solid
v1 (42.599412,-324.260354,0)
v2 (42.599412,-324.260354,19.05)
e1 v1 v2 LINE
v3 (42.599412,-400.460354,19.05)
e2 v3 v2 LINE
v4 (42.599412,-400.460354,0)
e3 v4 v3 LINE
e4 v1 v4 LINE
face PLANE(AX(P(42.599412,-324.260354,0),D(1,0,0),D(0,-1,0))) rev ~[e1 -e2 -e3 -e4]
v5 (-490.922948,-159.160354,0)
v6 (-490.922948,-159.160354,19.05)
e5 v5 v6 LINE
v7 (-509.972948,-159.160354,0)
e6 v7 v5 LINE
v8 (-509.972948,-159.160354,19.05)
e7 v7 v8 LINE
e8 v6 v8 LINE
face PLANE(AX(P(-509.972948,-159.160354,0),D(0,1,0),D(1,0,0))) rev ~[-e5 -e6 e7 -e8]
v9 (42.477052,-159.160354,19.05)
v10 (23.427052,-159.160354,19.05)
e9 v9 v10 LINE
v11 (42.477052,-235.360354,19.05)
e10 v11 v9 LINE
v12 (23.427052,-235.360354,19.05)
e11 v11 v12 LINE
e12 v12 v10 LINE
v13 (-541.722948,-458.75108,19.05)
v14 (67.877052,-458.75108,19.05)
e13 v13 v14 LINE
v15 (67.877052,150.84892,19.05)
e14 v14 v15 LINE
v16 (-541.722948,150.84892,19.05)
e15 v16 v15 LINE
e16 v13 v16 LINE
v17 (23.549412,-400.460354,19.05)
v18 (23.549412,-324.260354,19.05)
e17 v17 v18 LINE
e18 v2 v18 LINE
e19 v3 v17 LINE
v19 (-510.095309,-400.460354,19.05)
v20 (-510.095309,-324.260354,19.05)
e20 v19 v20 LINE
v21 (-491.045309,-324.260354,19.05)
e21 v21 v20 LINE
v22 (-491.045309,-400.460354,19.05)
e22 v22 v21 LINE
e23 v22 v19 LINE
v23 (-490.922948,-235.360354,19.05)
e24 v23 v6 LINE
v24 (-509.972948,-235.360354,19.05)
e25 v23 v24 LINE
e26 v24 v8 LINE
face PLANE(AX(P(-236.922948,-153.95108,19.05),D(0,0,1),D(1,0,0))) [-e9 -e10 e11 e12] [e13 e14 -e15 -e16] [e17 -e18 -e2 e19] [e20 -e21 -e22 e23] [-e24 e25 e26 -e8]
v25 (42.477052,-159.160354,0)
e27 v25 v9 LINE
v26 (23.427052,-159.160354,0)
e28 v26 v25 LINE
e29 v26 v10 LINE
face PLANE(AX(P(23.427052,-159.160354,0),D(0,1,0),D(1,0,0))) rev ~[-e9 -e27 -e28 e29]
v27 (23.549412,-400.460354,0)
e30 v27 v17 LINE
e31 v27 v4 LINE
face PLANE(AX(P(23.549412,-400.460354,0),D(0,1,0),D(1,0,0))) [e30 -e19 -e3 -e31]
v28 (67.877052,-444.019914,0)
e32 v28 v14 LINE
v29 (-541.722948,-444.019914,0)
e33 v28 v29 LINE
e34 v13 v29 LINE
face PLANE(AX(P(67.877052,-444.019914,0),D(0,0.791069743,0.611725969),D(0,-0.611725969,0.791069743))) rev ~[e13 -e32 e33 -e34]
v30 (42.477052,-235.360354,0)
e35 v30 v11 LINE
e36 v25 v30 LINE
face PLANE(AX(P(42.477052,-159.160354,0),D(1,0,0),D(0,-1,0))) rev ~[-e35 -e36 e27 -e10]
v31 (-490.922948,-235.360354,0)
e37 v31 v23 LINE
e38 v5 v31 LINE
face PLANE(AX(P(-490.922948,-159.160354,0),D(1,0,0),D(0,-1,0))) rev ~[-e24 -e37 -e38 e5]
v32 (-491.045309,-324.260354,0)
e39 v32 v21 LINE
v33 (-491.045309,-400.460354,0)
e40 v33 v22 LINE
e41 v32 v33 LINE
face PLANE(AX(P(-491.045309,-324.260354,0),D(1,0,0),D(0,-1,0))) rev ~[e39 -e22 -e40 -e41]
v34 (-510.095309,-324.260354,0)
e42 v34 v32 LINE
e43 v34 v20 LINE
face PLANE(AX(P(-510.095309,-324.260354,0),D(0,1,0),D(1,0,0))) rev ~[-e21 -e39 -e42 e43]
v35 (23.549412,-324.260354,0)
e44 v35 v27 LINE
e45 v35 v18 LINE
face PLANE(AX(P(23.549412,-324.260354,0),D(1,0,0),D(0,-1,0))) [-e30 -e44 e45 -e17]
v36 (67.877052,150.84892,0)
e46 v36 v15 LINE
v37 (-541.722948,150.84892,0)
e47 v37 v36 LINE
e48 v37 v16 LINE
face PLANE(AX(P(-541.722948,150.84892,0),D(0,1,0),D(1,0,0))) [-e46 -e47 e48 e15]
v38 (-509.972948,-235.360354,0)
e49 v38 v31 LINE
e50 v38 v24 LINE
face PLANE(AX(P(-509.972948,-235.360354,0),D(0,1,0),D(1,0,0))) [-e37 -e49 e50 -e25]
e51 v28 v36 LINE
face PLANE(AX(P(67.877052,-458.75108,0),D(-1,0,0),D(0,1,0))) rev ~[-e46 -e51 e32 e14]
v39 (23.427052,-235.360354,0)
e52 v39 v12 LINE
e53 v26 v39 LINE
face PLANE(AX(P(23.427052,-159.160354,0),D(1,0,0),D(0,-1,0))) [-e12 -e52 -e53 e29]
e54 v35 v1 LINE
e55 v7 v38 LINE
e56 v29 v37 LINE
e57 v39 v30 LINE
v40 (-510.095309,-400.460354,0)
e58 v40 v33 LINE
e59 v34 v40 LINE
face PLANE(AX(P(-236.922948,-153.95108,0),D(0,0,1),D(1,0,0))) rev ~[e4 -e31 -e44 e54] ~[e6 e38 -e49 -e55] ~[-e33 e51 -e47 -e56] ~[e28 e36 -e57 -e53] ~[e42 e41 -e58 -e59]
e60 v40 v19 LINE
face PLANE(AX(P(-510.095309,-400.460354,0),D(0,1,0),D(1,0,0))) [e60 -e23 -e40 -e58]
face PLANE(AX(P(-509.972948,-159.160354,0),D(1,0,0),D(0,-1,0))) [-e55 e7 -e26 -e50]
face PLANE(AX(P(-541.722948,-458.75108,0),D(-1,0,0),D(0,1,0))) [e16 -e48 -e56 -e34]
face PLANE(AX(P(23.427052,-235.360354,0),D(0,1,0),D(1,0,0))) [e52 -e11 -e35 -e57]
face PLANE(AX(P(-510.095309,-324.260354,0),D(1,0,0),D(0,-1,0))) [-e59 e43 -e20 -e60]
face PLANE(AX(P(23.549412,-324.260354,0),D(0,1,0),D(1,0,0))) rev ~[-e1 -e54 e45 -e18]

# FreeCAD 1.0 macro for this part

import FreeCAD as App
import Part
import Sketcher

V = App.Vector
Q = App.Units.Quantity

doc = App.newDocument("Part")
body = doc.addObject("PartDesign::Body", "Body")

# Sketch on XY plane
sketch1 = body.newObject("Sketcher::SketchObject", "Sketch")
sketch1.AttachmentSupport = (doc.getObject("XY_Plane"), [""])
sketch1.MapMode = "FlatFace"
sketch1.addGeometry(Part.LineSegment(V(-542, 151, 0), V(-542, -459, 0)), False)
sketch1.addGeometry(Part.LineSegment(V(-542, -459, 0), V(68, -459, 0)), False)
sketch1.addGeometry(Part.LineSegment(V(68, -459, 0), V(68, 151, 0)), False)
sketch1.addGeometry(Part.LineSegment(V(68, 151, 0), V(-542, 151, 0)), False)
sketch1.addConstraint(Sketcher.Constraint("Coincident", 0, 2, 1, 1))
sketch1.addConstraint(Sketcher.Constraint("Coincident", 1, 2, 2, 1))
sketch1.addConstraint(Sketcher.Constraint("Coincident", 2, 2, 3, 1))
sketch1.addConstraint(Sketcher.Constraint("Coincident", 3, 2, 0, 1))
sketch1.addConstraint(Sketcher.Constraint("Vertical", 0))
sketch1.addConstraint(Sketcher.Constraint("Horizontal", 1))
sketch1.addConstraint(Sketcher.Constraint("Vertical", 2))
sketch1.addConstraint(Sketcher.Constraint("Horizontal", 3))
sketch1.addConstraint(Sketcher.Constraint("Equal", 3, 0))
sketch1.addConstraint(Sketcher.Constraint("DistanceX", 1, 1, 1, 2, Q("24 in")))
sketch1.addConstraint(Sketcher.Constraint("DistanceX", 0, 2, -1, 1, 541.722948))
sketch1.addConstraint(Sketcher.Constraint("DistanceY", 0, 2, -1, 1, 458.75108))
pad1 = body.newObject("PartDesign::Pad", "Pad")
pad1.Profile = sketch1
pad1.Length = Q("0.75 in")

# Sketch on YZ plane
sketch2 = body.newObject("Sketcher::SketchObject", "Sketch001")
sketch2.AttachmentSupport = (doc.getObject("YZ_Plane"), [""])
sketch2.MapMode = "FlatFace"
sketch2.AttachmentOffset = App.Placement(V(0, 0, 67.877052), App.Rotation())
sketch2.addGeometry(Part.LineSegment(V(-444, 0, 0), V(-459, 19, 0)), False)
sketch2.addGeometry(Part.LineSegment(V(-459, 19, 0), V(-459, 0, 0)), False)
sketch2.addGeometry(Part.LineSegment(V(-459, 0, 0), V(-444, 0, 0)), False)
sketch2.addConstraint(Sketcher.Constraint("Coincident", 0, 2, 1, 1))
sketch2.addConstraint(Sketcher.Constraint("Coincident", 1, 2, 2, 1))
sketch2.addConstraint(Sketcher.Constraint("Coincident", 2, 2, 0, 1))
sketch2.addConstraint(Sketcher.Constraint("Vertical", 1))
sketch2.addConstraint(Sketcher.Constraint("Horizontal", 2))
sketch2.addConstraint(Sketcher.Constraint("PointOnObject", 1, 2, -1))
sketch2.addConstraint(Sketcher.Constraint("DistanceY", 1, 2, 1, 1, Q("0.75 in")))
sketch2.addConstraint(Sketcher.Constraint("DistanceX", 2, 1, 2, 2, 14.731166))
sketch2.addConstraint(Sketcher.Constraint("DistanceX", 0, 2, -1, 1, 458.75108))
pocket1 = body.newObject("PartDesign::Pocket", "Pocket")
pocket1.Profile = sketch2
pocket1.Length = Q("29.41 in")

# Sketch on XY plane
sketch3 = body.newObject("Sketcher::SketchObject", "Sketch002")
sketch3.AttachmentSupport = (doc.getObject("XY_Plane"), [""])
sketch3.MapMode = "FlatFace"
sketch3.addGeometry(Part.LineSegment(V(-510, -400, 0), V(-510, -324, 0)), False)
sketch3.addGeometry(Part.LineSegment(V(-510, -324, 0), V(-491, -324, 0)), False)
sketch3.addGeometry(Part.LineSegment(V(-491, -324, 0), V(-491, -400, 0)), False)
sketch3.addGeometry(Part.LineSegment(V(-491, -400, 0), V(-510, -400, 0)), False)
sketch3.addGeometry(Part.LineSegment(V(-510, -235, 0), V(-510, -159, 0)), False)
sketch3.addGeometry(Part.LineSegment(V(-510, -159, 0), V(-491, -159, 0)), False)
sketch3.addGeometry(Part.LineSegment(V(-491, -159, 0), V(-491, -235, 0)), False)
sketch3.addGeometry(Part.LineSegment(V(-491, -235, 0), V(-510, -235, 0)), False)
sketch3.addGeometry(Part.LineSegment(V(23, -235, 0), V(23, -159, 0)), False)
sketch3.addGeometry(Part.LineSegment(V(23, -159, 0), V(42, -159, 0)), False)
sketch3.addGeometry(Part.LineSegment(V(42, -159, 0), V(42, -235, 0)), False)
sketch3.addGeometry(Part.LineSegment(V(42, -235, 0), V(23, -235, 0)), False)
sketch3.addGeometry(Part.LineSegment(V(24, -400, 0), V(24, -324, 0)), False)
sketch3.addGeometry(Part.LineSegment(V(24, -324, 0), V(43, -324, 0)), False)
sketch3.addGeometry(Part.LineSegment(V(43, -324, 0), V(43, -400, 0)), False)
sketch3.addGeometry(Part.LineSegment(V(43, -400, 0), V(24, -400, 0)), False)
sketch3.addConstraint(Sketcher.Constraint("Coincident", 0, 2, 1, 1))
sketch3.addConstraint(Sketcher.Constraint("Coincident", 1, 2, 2, 1))
sketch3.addConstraint(Sketcher.Constraint("Coincident", 2, 2, 3, 1))
sketch3.addConstraint(Sketcher.Constraint("Coincident", 3, 2, 0, 1))
sketch3.addConstraint(Sketcher.Constraint("Coincident", 4, 2, 5, 1))
sketch3.addConstraint(Sketcher.Constraint("Coincident", 5, 2, 6, 1))
sketch3.addConstraint(Sketcher.Constraint("Coincident", 6, 2, 7, 1))
sketch3.addConstraint(Sketcher.Constraint("Coincident", 7, 2, 4, 1))
sketch3.addConstraint(Sketcher.Constraint("Coincident", 8, 2, 9, 1))
sketch3.addConstraint(Sketcher.Constraint("Coincident", 9, 2, 10, 1))
sketch3.addConstraint(Sketcher.Constraint("Coincident", 10, 2, 11, 1))
sketch3.addConstraint(Sketcher.Constraint("Coincident", 11, 2, 8, 1))
sketch3.addConstraint(Sketcher.Constraint("Coincident", 12, 2, 13, 1))
sketch3.addConstraint(Sketcher.Constraint("Coincident", 13, 2, 14, 1))
sketch3.addConstraint(Sketcher.Constraint("Coincident", 14, 2, 15, 1))
sketch3.addConstraint(Sketcher.Constraint("Coincident", 15, 2, 12, 1))
sketch3.addConstraint(Sketcher.Constraint("Vertical", 0))
sketch3.addConstraint(Sketcher.Constraint("Horizontal", 1))
sketch3.addConstraint(Sketcher.Constraint("Vertical", 2))
sketch3.addConstraint(Sketcher.Constraint("Horizontal", 3))
sketch3.addConstraint(Sketcher.Constraint("Vertical", 4))
sketch3.addConstraint(Sketcher.Constraint("Horizontal", 5))
sketch3.addConstraint(Sketcher.Constraint("Vertical", 6))
sketch3.addConstraint(Sketcher.Constraint("Horizontal", 7))
sketch3.addConstraint(Sketcher.Constraint("Vertical", 8))
sketch3.addConstraint(Sketcher.Constraint("Horizontal", 9))
sketch3.addConstraint(Sketcher.Constraint("Vertical", 10))
sketch3.addConstraint(Sketcher.Constraint("Horizontal", 11))
sketch3.addConstraint(Sketcher.Constraint("Vertical", 12))
sketch3.addConstraint(Sketcher.Constraint("Horizontal", 13))
sketch3.addConstraint(Sketcher.Constraint("Vertical", 14))
sketch3.addConstraint(Sketcher.Constraint("Horizontal", 15))
sketch3.addConstraint(Sketcher.Constraint("Horizontal", 5, 2, 8, 2))
sketch3.addConstraint(Sketcher.Constraint("Horizontal", 7, 2, 10, 2))
sketch3.addConstraint(Sketcher.Constraint("Horizontal", 1, 2, 12, 2))
sketch3.addConstraint(Sketcher.Constraint("Horizontal", 3, 2, 14, 2))
sketch3.addConstraint(Sketcher.Constraint("Equal", 3, 5))
sketch3.addConstraint(Sketcher.Constraint("Equal", 7, 9))
sketch3.addConstraint(Sketcher.Constraint("Equal", 11, 13))
sketch3.addConstraint(Sketcher.Constraint("Equal", 2, 4))
sketch3.addConstraint(Sketcher.Constraint("DistanceY", 0, 1, 0, 2, Q("3 in")))
sketch3.addConstraint(Sketcher.Constraint("DistanceX", 4, 2, 8, 2, Q("21 in")))
sketch3.addConstraint(Sketcher.Constraint("DistanceX", 1, 1, 1, 2, Q("0.75 in")))
sketch3.addConstraint(Sketcher.Constraint("DistanceY", 0, 2, 4, 2, Q("6.5 in")))
sketch3.addConstraint(Sketcher.Constraint("DistanceX", 0, 2, -1, 1, 510.095309))
sketch3.addConstraint(Sketcher.Constraint("DistanceX", 5, 2, -1, 1, 490.922948))
sketch3.addConstraint(Sketcher.Constraint("DistanceX", -1, 1, 12, 2, 23.549412))
sketch3.addConstraint(Sketcher.Constraint("DistanceY", 0, 2, -1, 1, 324.260354))
pocket2 = body.newObject("PartDesign::Pocket", "Pocket001")
pocket2.Profile = sketch3
pocket2.Length = Q("1 in")
pocket2.Reversed = True

doc.recompute()
